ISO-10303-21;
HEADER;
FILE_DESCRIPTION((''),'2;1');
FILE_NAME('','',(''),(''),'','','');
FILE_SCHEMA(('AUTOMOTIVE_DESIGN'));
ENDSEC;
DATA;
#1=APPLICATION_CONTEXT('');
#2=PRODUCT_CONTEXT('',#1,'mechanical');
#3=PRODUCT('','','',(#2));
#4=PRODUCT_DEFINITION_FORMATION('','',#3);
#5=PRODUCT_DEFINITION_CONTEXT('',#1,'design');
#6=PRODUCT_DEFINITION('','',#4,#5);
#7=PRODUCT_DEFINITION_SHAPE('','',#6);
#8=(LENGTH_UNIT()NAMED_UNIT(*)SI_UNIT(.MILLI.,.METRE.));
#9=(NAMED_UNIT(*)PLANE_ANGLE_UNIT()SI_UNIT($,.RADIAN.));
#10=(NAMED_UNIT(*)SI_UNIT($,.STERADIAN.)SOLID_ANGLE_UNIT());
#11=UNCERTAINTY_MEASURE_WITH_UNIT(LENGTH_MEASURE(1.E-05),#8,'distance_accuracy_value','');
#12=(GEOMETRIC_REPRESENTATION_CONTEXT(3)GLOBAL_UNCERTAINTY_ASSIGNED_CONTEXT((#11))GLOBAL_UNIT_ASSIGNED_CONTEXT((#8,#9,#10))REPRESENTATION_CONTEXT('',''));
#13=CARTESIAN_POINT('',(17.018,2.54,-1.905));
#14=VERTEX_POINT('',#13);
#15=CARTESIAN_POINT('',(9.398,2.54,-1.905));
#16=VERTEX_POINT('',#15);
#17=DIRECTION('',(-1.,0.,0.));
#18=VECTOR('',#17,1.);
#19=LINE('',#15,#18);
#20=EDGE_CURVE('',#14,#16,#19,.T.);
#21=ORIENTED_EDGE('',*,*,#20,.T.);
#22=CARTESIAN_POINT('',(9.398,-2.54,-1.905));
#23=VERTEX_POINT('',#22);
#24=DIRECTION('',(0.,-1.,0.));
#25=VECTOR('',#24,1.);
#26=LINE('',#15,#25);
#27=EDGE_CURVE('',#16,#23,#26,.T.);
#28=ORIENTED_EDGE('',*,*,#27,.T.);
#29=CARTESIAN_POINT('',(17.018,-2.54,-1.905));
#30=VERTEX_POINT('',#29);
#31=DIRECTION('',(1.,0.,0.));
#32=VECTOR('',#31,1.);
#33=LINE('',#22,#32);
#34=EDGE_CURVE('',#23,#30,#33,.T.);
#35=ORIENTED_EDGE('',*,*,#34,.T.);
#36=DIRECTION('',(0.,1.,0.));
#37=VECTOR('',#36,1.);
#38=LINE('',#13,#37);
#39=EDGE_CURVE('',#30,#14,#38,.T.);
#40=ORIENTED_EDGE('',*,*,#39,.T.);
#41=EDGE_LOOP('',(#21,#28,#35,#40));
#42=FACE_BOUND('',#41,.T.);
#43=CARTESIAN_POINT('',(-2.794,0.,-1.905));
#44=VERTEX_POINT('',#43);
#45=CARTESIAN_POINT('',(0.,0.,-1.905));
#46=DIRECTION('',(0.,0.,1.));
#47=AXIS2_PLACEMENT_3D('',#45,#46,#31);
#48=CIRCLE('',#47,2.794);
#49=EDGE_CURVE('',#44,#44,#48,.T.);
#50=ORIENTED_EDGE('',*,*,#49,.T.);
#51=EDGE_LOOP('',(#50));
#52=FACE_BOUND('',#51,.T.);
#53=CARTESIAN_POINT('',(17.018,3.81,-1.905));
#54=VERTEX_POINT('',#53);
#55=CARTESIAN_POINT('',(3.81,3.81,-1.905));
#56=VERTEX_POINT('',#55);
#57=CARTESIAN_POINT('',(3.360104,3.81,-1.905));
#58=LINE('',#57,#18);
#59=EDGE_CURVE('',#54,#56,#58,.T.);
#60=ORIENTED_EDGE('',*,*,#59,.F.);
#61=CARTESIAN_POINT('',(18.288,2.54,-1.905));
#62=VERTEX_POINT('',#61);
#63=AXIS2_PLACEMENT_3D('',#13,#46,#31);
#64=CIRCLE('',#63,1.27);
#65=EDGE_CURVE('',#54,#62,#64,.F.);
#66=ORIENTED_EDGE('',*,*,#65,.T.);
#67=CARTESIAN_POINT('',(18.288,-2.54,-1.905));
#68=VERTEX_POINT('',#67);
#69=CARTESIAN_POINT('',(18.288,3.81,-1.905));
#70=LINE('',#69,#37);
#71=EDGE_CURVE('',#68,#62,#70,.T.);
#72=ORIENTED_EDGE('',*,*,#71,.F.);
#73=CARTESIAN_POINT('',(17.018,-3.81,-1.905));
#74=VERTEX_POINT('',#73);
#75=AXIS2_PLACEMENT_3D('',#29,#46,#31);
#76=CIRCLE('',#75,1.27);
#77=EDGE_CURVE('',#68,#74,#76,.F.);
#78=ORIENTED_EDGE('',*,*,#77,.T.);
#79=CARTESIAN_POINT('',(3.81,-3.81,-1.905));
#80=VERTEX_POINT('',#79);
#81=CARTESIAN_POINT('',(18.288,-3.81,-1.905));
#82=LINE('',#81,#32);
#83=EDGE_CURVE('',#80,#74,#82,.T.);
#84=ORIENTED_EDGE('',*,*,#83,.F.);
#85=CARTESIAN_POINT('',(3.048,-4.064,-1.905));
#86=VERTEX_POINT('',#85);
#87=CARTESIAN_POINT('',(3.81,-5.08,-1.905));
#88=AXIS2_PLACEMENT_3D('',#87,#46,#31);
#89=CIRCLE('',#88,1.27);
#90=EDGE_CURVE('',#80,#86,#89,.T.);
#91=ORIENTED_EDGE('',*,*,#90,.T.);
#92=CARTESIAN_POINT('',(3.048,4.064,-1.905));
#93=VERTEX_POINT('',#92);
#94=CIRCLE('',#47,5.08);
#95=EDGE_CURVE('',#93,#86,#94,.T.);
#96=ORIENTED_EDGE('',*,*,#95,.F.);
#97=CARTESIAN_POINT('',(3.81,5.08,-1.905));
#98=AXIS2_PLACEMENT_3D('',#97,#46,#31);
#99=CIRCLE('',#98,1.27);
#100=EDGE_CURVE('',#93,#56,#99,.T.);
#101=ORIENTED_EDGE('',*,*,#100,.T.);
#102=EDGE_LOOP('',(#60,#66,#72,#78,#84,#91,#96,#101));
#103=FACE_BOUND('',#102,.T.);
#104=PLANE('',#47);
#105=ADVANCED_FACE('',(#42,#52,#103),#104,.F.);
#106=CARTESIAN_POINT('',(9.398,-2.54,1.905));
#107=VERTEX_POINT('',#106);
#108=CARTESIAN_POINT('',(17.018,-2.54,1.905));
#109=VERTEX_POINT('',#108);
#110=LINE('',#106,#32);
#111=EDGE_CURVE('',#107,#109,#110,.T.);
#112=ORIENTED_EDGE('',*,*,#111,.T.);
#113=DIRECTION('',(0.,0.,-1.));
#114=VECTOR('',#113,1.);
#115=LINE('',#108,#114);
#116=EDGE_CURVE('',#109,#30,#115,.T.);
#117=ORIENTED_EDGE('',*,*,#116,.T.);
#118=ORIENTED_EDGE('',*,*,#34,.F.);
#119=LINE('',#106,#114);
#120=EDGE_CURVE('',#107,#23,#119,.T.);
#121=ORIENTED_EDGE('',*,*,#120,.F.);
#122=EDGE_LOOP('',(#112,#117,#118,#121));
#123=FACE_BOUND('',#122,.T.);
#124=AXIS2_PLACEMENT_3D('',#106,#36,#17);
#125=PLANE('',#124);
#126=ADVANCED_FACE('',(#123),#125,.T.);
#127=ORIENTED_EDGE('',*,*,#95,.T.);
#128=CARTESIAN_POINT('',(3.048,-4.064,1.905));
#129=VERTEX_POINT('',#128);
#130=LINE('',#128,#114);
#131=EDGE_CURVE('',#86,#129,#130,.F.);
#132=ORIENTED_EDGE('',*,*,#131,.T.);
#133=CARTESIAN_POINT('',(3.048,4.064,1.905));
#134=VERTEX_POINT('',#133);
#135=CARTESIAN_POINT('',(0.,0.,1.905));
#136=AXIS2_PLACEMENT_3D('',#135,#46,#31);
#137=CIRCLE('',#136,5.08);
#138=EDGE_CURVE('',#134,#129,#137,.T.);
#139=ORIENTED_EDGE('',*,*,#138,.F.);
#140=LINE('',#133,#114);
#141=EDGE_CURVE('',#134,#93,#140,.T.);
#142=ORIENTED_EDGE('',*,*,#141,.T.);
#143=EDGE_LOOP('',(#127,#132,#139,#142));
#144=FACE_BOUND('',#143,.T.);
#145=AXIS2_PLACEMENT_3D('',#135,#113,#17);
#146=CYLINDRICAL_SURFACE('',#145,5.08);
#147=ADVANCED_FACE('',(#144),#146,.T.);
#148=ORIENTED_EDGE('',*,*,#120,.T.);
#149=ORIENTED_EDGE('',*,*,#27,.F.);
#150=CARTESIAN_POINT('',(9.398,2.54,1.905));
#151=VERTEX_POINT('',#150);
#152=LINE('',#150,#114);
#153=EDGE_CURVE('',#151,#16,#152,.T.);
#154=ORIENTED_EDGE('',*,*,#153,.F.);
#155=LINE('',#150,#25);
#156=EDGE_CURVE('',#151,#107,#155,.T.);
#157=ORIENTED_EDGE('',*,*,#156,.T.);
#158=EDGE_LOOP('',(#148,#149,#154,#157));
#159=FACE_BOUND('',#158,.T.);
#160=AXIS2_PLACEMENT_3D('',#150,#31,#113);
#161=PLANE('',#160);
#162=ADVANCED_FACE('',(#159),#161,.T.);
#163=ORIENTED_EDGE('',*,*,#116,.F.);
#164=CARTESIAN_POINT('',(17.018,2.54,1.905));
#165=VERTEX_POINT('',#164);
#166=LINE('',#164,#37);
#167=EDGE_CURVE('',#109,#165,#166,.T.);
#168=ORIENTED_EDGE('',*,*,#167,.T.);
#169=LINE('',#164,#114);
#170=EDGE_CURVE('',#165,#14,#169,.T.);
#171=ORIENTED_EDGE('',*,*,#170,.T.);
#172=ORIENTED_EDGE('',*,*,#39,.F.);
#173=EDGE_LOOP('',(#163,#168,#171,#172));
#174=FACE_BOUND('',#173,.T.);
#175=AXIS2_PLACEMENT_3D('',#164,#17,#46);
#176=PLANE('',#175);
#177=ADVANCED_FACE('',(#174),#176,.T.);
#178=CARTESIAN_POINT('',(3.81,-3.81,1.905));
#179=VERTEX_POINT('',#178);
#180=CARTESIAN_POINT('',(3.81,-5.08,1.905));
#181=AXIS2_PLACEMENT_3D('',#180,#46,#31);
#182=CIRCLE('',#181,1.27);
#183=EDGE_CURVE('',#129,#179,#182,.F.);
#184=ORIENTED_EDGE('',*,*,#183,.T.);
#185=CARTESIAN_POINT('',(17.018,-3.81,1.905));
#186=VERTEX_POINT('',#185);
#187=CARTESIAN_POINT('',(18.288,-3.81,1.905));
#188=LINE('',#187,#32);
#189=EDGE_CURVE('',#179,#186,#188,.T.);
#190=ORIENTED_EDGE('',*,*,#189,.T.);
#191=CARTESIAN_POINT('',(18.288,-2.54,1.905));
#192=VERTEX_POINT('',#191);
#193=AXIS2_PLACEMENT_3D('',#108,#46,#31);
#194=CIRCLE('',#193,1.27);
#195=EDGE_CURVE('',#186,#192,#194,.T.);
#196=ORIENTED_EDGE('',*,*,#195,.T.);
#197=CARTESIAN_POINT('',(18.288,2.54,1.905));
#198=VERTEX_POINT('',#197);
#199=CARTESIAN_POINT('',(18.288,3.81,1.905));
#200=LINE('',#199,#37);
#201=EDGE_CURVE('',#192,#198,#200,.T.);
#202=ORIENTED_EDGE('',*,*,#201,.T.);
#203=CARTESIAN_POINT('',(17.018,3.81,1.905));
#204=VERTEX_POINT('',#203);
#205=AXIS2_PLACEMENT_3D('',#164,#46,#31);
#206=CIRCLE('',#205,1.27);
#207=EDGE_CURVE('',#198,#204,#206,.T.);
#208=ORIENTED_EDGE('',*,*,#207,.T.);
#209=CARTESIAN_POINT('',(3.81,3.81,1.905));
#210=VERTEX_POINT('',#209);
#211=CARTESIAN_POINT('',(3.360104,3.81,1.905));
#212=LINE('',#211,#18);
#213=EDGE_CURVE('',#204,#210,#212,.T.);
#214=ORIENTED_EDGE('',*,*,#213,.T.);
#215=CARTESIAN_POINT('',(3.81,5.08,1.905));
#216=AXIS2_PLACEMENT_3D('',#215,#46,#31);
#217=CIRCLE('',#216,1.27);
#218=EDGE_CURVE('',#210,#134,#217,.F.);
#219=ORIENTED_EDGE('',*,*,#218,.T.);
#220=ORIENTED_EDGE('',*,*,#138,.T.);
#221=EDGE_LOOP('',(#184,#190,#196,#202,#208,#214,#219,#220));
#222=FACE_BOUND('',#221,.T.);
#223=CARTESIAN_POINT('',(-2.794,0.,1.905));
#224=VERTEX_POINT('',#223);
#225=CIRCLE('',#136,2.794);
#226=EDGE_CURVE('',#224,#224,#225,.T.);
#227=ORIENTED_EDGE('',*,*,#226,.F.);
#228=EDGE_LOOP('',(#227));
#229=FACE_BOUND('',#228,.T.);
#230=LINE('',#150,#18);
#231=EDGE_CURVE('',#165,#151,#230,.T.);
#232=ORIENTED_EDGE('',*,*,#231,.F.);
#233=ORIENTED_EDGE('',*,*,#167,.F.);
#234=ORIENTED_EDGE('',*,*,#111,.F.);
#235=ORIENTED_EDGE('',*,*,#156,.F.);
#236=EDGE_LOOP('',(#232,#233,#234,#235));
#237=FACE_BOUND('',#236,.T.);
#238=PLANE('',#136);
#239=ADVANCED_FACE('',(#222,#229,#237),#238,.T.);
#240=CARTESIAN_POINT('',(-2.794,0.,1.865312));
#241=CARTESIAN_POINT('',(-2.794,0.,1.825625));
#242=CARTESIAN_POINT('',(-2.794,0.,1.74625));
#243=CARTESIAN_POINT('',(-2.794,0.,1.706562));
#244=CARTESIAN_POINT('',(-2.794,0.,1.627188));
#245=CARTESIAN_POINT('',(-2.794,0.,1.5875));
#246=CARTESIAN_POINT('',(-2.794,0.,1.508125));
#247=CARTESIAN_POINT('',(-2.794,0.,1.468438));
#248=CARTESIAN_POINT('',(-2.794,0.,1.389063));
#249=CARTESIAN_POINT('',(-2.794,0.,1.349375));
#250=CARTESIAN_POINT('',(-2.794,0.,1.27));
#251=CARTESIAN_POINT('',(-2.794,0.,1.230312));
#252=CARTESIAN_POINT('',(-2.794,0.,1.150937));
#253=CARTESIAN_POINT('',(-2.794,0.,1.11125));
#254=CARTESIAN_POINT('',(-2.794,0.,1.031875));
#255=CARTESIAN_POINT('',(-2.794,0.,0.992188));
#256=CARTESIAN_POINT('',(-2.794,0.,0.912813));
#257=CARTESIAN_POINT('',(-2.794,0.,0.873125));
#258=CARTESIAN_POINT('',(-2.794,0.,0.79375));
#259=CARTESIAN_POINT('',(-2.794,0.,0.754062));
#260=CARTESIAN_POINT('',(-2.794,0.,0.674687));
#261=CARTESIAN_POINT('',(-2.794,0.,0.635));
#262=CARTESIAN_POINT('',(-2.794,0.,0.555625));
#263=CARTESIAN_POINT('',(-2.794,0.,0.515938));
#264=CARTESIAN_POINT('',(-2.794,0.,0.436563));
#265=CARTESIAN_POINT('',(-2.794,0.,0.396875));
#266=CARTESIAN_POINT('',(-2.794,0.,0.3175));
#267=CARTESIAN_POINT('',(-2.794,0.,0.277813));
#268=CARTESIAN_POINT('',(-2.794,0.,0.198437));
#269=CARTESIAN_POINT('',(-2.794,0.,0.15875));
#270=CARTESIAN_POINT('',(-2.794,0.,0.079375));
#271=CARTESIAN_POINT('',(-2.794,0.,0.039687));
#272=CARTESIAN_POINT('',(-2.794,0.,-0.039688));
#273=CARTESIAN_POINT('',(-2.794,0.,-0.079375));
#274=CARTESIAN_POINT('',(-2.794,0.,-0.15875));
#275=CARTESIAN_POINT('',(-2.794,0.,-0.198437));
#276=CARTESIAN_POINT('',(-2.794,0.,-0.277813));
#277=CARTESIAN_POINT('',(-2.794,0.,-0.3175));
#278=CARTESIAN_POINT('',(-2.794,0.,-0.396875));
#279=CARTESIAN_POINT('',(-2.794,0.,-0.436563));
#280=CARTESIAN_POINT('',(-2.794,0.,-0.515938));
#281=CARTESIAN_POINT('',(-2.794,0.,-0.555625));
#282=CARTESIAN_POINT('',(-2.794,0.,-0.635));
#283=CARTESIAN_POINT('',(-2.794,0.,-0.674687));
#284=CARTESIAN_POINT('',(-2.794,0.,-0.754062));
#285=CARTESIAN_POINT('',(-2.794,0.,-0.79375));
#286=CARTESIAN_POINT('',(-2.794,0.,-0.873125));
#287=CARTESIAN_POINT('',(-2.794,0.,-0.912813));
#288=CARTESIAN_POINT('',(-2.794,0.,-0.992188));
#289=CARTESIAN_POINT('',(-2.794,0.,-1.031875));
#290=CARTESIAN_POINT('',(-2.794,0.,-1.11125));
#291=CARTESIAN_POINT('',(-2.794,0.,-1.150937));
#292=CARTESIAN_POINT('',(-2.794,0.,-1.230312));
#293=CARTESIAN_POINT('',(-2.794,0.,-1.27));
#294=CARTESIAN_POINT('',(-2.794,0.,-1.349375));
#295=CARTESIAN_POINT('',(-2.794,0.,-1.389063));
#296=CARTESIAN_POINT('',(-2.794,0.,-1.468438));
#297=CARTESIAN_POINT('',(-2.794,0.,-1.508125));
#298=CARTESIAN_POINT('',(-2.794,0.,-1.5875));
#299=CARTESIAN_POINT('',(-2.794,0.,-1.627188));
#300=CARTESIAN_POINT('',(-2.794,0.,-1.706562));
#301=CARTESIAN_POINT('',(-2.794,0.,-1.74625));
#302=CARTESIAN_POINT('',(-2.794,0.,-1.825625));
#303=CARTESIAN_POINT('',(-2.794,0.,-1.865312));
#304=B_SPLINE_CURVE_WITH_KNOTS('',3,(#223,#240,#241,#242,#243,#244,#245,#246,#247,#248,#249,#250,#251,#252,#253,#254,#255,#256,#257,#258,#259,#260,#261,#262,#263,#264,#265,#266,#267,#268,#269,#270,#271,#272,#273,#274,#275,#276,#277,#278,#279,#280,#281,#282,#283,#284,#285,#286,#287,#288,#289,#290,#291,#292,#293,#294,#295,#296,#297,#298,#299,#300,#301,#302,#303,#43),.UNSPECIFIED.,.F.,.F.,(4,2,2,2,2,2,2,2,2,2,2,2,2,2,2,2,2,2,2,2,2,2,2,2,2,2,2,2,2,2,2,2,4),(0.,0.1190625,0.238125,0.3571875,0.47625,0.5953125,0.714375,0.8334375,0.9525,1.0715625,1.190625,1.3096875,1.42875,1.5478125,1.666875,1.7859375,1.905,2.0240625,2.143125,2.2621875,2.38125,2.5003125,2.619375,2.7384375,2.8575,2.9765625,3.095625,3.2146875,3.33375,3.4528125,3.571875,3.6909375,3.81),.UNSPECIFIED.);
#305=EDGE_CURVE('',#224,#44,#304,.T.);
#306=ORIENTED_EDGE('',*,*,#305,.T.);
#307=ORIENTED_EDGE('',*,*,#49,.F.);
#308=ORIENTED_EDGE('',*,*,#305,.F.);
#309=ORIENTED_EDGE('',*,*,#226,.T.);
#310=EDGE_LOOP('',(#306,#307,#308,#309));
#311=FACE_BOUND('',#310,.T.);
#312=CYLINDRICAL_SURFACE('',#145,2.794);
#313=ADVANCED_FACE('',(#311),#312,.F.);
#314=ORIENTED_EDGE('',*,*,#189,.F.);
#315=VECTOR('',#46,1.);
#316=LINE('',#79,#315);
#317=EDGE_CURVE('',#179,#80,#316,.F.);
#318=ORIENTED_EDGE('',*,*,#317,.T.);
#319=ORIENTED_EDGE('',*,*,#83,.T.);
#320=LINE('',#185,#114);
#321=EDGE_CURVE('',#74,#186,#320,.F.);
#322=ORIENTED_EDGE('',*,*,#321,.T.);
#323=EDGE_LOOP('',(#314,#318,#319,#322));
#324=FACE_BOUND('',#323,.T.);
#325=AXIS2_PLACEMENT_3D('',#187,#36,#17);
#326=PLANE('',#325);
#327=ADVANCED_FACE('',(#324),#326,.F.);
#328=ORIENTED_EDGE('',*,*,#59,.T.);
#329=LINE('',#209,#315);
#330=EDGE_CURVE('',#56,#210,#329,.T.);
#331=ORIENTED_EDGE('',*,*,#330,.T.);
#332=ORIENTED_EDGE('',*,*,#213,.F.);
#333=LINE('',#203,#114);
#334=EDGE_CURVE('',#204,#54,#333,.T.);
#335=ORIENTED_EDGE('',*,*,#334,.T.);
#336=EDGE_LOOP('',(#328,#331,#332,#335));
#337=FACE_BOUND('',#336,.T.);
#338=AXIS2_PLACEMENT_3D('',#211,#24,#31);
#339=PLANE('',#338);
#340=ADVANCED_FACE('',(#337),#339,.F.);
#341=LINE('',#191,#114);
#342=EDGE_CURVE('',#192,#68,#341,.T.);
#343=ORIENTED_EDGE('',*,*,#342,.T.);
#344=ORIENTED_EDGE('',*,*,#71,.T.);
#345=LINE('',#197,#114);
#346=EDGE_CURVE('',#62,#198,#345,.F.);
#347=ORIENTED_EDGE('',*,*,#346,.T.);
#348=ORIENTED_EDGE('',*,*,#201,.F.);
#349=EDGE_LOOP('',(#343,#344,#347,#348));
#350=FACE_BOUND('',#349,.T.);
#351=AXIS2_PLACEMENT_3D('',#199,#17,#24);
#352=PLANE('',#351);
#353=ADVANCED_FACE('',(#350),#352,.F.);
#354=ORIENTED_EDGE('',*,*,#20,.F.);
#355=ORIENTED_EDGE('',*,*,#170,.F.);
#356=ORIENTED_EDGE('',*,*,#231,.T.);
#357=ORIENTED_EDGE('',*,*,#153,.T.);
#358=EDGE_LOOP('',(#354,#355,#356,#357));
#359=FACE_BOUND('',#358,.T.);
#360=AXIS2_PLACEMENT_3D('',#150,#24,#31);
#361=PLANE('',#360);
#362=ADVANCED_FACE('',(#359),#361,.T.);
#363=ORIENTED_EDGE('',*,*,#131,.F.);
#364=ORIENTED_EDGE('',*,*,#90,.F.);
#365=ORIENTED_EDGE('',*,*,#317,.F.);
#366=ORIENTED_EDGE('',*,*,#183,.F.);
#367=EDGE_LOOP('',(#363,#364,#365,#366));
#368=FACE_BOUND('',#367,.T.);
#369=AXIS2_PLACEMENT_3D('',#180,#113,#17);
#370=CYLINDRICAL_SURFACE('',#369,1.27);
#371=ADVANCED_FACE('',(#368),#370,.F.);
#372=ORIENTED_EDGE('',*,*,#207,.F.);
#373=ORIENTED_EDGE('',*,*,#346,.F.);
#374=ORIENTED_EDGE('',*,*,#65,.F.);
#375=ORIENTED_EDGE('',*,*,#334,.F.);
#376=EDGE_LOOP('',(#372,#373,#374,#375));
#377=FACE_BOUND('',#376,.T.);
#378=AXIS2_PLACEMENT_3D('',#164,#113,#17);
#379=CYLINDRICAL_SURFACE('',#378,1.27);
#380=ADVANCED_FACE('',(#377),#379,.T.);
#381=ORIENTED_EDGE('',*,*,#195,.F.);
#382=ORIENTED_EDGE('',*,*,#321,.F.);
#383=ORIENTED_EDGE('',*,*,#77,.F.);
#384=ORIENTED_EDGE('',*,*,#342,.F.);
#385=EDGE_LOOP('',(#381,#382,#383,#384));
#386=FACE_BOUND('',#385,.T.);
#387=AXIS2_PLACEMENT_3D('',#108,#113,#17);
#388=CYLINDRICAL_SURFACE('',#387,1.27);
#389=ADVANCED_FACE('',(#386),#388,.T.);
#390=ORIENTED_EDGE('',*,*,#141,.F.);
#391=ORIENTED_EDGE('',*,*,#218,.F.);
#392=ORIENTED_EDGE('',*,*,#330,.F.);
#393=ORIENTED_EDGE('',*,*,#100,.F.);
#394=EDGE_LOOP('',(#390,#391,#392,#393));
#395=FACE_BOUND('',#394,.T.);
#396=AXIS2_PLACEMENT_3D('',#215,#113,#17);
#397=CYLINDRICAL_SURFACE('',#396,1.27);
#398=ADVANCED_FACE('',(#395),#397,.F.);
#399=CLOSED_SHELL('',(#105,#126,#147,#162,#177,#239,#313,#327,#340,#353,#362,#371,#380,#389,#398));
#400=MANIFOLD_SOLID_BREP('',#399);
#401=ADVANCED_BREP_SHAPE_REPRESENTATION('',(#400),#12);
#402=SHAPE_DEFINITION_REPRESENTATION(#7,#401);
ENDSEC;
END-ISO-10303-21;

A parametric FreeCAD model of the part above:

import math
import FreeCAD as App
import Part
import Sketcher
Q = App.Units.Quantity


def edges_at(feature, points):
    """Names of the edges that pass closest to the given points."""
    edges = feature.Shape.Edges
    near = lambda p: min(range(len(edges)), key=lambda i: edges[i].distToShape(Part.Vertex(*p))[0])
    return sorted({f"Edge{near(p) + 1}" for p in points})


def add_polygon(sketch, points):
    """Adds a closed chain of lines whose ends are joined by coincident constraints."""
    first, n = sketch.GeometryCount, len(points)
    for a, b in zip(points, points[1:] + points[:1]):
        sketch.addGeometry(Part.LineSegment(App.Vector(*a, 0), App.Vector(*b, 0)), False)
    for i in range(n):
        sketch.addConstraint(Sketcher.Constraint("Coincident", first + i, 2, first + (i + 1) % n, 1))

doc = App.newDocument("Part")
body = doc.addObject("PartDesign::Body", "Body")

sketch1 = doc.addObject("Sketcher::SketchObject", "Sketch")
body.addObject(sketch1)
sketch1.AttachmentSupport = (doc.XY_Plane, [""])
sketch1.MapMode = "FlatFace"
sketch1.addGeometry(Part.LineSegment(App.Vector(18.3, 3.8, 0), App.Vector(3.4, 3.8, 0)), False)
sketch1.addGeometry(Part.ArcOfCircle(Part.Circle(App.Vector(0, 0, 0), App.Vector(0, 0, 1), 5.1), math.radians(49), math.radians(311)), False)
sketch1.addGeometry(Part.LineSegment(App.Vector(3.4, -3.8, 0), App.Vector(18.3, -3.8, 0)), False)
sketch1.addGeometry(Part.LineSegment(App.Vector(18.3, -3.8, 0), App.Vector(18.3, 3.8, 0)), False)
add_polygon(sketch1, [(9.4, -2.5), (9.4, 2.5), (17, 2.5), (17, -2.5)])
sketch1.addGeometry(Part.Circle(App.Vector(0, 0, 0), App.Vector(0, 0, 1), 2.8), False)
sketch1.addConstraint([
    Sketcher.Constraint("Coincident", 0, 2, 1, 1),
    Sketcher.Constraint("Coincident", 1, 2, 2, 1),
    Sketcher.Constraint("Coincident", 2, 2, 3, 1),
    Sketcher.Constraint("Coincident", 3, 2, 0, 1),
    Sketcher.Constraint("Horizontal", 0),
    Sketcher.Constraint("Horizontal", 2),
    Sketcher.Constraint("Vertical", 3),
    Sketcher.Constraint("Vertical", 4),
    Sketcher.Constraint("Horizontal", 5),
    Sketcher.Constraint("Vertical", 6),
    Sketcher.Constraint("Horizontal", 7),
    Sketcher.Constraint("Coincident", 1, 3, -1, 1),
    Sketcher.Constraint("Coincident", 8, 3, -1, 1),
    Sketcher.Constraint("Vertical", 0, 2, 1, 2),
    Sketcher.Constraint("Equal", 7, 3),
    Sketcher.Constraint("Radius", 1, Q("0.2 in")),
    Sketcher.Constraint("Diameter", 8, Q("0.22 in")),
    Sketcher.Constraint("DistanceX", 5, 1, 5, 2, Q("0.3 in")),
    Sketcher.Constraint("DistanceY", 4, 1, 4, 2, Q("0.2 in")),
    Sketcher.Constraint("DistanceY", -1, 1, 4, 2, Q("0.1 in")),
    Sketcher.Constraint("DistanceX", -1, 1, 2, 2, Q("0.72 in")),
    Sketcher.Constraint("DistanceX", -1, 1, 4, 2, Q("0.37 in")),
])
pad1 = doc.addObject("PartDesign::Pad", "Pad")
body.addObject(pad1)
pad1.Profile = sketch1
pad1.Length = Q("0.15 in")
pad1.Midplane = True
doc.recompute()

fillet = doc.addObject("PartDesign::Fillet", "Fillet")
body.addObject(fillet)
fillet.Base = (pad1, edges_at(pad1, [
    (3.36, 3.81, 0),
    (18.288, 3.81, 0),
    (18.288, -3.81, 0),
    (3.36, -3.81, 0),
]))
fillet.Radius = Q("0.05 in")

doc.recompute()
